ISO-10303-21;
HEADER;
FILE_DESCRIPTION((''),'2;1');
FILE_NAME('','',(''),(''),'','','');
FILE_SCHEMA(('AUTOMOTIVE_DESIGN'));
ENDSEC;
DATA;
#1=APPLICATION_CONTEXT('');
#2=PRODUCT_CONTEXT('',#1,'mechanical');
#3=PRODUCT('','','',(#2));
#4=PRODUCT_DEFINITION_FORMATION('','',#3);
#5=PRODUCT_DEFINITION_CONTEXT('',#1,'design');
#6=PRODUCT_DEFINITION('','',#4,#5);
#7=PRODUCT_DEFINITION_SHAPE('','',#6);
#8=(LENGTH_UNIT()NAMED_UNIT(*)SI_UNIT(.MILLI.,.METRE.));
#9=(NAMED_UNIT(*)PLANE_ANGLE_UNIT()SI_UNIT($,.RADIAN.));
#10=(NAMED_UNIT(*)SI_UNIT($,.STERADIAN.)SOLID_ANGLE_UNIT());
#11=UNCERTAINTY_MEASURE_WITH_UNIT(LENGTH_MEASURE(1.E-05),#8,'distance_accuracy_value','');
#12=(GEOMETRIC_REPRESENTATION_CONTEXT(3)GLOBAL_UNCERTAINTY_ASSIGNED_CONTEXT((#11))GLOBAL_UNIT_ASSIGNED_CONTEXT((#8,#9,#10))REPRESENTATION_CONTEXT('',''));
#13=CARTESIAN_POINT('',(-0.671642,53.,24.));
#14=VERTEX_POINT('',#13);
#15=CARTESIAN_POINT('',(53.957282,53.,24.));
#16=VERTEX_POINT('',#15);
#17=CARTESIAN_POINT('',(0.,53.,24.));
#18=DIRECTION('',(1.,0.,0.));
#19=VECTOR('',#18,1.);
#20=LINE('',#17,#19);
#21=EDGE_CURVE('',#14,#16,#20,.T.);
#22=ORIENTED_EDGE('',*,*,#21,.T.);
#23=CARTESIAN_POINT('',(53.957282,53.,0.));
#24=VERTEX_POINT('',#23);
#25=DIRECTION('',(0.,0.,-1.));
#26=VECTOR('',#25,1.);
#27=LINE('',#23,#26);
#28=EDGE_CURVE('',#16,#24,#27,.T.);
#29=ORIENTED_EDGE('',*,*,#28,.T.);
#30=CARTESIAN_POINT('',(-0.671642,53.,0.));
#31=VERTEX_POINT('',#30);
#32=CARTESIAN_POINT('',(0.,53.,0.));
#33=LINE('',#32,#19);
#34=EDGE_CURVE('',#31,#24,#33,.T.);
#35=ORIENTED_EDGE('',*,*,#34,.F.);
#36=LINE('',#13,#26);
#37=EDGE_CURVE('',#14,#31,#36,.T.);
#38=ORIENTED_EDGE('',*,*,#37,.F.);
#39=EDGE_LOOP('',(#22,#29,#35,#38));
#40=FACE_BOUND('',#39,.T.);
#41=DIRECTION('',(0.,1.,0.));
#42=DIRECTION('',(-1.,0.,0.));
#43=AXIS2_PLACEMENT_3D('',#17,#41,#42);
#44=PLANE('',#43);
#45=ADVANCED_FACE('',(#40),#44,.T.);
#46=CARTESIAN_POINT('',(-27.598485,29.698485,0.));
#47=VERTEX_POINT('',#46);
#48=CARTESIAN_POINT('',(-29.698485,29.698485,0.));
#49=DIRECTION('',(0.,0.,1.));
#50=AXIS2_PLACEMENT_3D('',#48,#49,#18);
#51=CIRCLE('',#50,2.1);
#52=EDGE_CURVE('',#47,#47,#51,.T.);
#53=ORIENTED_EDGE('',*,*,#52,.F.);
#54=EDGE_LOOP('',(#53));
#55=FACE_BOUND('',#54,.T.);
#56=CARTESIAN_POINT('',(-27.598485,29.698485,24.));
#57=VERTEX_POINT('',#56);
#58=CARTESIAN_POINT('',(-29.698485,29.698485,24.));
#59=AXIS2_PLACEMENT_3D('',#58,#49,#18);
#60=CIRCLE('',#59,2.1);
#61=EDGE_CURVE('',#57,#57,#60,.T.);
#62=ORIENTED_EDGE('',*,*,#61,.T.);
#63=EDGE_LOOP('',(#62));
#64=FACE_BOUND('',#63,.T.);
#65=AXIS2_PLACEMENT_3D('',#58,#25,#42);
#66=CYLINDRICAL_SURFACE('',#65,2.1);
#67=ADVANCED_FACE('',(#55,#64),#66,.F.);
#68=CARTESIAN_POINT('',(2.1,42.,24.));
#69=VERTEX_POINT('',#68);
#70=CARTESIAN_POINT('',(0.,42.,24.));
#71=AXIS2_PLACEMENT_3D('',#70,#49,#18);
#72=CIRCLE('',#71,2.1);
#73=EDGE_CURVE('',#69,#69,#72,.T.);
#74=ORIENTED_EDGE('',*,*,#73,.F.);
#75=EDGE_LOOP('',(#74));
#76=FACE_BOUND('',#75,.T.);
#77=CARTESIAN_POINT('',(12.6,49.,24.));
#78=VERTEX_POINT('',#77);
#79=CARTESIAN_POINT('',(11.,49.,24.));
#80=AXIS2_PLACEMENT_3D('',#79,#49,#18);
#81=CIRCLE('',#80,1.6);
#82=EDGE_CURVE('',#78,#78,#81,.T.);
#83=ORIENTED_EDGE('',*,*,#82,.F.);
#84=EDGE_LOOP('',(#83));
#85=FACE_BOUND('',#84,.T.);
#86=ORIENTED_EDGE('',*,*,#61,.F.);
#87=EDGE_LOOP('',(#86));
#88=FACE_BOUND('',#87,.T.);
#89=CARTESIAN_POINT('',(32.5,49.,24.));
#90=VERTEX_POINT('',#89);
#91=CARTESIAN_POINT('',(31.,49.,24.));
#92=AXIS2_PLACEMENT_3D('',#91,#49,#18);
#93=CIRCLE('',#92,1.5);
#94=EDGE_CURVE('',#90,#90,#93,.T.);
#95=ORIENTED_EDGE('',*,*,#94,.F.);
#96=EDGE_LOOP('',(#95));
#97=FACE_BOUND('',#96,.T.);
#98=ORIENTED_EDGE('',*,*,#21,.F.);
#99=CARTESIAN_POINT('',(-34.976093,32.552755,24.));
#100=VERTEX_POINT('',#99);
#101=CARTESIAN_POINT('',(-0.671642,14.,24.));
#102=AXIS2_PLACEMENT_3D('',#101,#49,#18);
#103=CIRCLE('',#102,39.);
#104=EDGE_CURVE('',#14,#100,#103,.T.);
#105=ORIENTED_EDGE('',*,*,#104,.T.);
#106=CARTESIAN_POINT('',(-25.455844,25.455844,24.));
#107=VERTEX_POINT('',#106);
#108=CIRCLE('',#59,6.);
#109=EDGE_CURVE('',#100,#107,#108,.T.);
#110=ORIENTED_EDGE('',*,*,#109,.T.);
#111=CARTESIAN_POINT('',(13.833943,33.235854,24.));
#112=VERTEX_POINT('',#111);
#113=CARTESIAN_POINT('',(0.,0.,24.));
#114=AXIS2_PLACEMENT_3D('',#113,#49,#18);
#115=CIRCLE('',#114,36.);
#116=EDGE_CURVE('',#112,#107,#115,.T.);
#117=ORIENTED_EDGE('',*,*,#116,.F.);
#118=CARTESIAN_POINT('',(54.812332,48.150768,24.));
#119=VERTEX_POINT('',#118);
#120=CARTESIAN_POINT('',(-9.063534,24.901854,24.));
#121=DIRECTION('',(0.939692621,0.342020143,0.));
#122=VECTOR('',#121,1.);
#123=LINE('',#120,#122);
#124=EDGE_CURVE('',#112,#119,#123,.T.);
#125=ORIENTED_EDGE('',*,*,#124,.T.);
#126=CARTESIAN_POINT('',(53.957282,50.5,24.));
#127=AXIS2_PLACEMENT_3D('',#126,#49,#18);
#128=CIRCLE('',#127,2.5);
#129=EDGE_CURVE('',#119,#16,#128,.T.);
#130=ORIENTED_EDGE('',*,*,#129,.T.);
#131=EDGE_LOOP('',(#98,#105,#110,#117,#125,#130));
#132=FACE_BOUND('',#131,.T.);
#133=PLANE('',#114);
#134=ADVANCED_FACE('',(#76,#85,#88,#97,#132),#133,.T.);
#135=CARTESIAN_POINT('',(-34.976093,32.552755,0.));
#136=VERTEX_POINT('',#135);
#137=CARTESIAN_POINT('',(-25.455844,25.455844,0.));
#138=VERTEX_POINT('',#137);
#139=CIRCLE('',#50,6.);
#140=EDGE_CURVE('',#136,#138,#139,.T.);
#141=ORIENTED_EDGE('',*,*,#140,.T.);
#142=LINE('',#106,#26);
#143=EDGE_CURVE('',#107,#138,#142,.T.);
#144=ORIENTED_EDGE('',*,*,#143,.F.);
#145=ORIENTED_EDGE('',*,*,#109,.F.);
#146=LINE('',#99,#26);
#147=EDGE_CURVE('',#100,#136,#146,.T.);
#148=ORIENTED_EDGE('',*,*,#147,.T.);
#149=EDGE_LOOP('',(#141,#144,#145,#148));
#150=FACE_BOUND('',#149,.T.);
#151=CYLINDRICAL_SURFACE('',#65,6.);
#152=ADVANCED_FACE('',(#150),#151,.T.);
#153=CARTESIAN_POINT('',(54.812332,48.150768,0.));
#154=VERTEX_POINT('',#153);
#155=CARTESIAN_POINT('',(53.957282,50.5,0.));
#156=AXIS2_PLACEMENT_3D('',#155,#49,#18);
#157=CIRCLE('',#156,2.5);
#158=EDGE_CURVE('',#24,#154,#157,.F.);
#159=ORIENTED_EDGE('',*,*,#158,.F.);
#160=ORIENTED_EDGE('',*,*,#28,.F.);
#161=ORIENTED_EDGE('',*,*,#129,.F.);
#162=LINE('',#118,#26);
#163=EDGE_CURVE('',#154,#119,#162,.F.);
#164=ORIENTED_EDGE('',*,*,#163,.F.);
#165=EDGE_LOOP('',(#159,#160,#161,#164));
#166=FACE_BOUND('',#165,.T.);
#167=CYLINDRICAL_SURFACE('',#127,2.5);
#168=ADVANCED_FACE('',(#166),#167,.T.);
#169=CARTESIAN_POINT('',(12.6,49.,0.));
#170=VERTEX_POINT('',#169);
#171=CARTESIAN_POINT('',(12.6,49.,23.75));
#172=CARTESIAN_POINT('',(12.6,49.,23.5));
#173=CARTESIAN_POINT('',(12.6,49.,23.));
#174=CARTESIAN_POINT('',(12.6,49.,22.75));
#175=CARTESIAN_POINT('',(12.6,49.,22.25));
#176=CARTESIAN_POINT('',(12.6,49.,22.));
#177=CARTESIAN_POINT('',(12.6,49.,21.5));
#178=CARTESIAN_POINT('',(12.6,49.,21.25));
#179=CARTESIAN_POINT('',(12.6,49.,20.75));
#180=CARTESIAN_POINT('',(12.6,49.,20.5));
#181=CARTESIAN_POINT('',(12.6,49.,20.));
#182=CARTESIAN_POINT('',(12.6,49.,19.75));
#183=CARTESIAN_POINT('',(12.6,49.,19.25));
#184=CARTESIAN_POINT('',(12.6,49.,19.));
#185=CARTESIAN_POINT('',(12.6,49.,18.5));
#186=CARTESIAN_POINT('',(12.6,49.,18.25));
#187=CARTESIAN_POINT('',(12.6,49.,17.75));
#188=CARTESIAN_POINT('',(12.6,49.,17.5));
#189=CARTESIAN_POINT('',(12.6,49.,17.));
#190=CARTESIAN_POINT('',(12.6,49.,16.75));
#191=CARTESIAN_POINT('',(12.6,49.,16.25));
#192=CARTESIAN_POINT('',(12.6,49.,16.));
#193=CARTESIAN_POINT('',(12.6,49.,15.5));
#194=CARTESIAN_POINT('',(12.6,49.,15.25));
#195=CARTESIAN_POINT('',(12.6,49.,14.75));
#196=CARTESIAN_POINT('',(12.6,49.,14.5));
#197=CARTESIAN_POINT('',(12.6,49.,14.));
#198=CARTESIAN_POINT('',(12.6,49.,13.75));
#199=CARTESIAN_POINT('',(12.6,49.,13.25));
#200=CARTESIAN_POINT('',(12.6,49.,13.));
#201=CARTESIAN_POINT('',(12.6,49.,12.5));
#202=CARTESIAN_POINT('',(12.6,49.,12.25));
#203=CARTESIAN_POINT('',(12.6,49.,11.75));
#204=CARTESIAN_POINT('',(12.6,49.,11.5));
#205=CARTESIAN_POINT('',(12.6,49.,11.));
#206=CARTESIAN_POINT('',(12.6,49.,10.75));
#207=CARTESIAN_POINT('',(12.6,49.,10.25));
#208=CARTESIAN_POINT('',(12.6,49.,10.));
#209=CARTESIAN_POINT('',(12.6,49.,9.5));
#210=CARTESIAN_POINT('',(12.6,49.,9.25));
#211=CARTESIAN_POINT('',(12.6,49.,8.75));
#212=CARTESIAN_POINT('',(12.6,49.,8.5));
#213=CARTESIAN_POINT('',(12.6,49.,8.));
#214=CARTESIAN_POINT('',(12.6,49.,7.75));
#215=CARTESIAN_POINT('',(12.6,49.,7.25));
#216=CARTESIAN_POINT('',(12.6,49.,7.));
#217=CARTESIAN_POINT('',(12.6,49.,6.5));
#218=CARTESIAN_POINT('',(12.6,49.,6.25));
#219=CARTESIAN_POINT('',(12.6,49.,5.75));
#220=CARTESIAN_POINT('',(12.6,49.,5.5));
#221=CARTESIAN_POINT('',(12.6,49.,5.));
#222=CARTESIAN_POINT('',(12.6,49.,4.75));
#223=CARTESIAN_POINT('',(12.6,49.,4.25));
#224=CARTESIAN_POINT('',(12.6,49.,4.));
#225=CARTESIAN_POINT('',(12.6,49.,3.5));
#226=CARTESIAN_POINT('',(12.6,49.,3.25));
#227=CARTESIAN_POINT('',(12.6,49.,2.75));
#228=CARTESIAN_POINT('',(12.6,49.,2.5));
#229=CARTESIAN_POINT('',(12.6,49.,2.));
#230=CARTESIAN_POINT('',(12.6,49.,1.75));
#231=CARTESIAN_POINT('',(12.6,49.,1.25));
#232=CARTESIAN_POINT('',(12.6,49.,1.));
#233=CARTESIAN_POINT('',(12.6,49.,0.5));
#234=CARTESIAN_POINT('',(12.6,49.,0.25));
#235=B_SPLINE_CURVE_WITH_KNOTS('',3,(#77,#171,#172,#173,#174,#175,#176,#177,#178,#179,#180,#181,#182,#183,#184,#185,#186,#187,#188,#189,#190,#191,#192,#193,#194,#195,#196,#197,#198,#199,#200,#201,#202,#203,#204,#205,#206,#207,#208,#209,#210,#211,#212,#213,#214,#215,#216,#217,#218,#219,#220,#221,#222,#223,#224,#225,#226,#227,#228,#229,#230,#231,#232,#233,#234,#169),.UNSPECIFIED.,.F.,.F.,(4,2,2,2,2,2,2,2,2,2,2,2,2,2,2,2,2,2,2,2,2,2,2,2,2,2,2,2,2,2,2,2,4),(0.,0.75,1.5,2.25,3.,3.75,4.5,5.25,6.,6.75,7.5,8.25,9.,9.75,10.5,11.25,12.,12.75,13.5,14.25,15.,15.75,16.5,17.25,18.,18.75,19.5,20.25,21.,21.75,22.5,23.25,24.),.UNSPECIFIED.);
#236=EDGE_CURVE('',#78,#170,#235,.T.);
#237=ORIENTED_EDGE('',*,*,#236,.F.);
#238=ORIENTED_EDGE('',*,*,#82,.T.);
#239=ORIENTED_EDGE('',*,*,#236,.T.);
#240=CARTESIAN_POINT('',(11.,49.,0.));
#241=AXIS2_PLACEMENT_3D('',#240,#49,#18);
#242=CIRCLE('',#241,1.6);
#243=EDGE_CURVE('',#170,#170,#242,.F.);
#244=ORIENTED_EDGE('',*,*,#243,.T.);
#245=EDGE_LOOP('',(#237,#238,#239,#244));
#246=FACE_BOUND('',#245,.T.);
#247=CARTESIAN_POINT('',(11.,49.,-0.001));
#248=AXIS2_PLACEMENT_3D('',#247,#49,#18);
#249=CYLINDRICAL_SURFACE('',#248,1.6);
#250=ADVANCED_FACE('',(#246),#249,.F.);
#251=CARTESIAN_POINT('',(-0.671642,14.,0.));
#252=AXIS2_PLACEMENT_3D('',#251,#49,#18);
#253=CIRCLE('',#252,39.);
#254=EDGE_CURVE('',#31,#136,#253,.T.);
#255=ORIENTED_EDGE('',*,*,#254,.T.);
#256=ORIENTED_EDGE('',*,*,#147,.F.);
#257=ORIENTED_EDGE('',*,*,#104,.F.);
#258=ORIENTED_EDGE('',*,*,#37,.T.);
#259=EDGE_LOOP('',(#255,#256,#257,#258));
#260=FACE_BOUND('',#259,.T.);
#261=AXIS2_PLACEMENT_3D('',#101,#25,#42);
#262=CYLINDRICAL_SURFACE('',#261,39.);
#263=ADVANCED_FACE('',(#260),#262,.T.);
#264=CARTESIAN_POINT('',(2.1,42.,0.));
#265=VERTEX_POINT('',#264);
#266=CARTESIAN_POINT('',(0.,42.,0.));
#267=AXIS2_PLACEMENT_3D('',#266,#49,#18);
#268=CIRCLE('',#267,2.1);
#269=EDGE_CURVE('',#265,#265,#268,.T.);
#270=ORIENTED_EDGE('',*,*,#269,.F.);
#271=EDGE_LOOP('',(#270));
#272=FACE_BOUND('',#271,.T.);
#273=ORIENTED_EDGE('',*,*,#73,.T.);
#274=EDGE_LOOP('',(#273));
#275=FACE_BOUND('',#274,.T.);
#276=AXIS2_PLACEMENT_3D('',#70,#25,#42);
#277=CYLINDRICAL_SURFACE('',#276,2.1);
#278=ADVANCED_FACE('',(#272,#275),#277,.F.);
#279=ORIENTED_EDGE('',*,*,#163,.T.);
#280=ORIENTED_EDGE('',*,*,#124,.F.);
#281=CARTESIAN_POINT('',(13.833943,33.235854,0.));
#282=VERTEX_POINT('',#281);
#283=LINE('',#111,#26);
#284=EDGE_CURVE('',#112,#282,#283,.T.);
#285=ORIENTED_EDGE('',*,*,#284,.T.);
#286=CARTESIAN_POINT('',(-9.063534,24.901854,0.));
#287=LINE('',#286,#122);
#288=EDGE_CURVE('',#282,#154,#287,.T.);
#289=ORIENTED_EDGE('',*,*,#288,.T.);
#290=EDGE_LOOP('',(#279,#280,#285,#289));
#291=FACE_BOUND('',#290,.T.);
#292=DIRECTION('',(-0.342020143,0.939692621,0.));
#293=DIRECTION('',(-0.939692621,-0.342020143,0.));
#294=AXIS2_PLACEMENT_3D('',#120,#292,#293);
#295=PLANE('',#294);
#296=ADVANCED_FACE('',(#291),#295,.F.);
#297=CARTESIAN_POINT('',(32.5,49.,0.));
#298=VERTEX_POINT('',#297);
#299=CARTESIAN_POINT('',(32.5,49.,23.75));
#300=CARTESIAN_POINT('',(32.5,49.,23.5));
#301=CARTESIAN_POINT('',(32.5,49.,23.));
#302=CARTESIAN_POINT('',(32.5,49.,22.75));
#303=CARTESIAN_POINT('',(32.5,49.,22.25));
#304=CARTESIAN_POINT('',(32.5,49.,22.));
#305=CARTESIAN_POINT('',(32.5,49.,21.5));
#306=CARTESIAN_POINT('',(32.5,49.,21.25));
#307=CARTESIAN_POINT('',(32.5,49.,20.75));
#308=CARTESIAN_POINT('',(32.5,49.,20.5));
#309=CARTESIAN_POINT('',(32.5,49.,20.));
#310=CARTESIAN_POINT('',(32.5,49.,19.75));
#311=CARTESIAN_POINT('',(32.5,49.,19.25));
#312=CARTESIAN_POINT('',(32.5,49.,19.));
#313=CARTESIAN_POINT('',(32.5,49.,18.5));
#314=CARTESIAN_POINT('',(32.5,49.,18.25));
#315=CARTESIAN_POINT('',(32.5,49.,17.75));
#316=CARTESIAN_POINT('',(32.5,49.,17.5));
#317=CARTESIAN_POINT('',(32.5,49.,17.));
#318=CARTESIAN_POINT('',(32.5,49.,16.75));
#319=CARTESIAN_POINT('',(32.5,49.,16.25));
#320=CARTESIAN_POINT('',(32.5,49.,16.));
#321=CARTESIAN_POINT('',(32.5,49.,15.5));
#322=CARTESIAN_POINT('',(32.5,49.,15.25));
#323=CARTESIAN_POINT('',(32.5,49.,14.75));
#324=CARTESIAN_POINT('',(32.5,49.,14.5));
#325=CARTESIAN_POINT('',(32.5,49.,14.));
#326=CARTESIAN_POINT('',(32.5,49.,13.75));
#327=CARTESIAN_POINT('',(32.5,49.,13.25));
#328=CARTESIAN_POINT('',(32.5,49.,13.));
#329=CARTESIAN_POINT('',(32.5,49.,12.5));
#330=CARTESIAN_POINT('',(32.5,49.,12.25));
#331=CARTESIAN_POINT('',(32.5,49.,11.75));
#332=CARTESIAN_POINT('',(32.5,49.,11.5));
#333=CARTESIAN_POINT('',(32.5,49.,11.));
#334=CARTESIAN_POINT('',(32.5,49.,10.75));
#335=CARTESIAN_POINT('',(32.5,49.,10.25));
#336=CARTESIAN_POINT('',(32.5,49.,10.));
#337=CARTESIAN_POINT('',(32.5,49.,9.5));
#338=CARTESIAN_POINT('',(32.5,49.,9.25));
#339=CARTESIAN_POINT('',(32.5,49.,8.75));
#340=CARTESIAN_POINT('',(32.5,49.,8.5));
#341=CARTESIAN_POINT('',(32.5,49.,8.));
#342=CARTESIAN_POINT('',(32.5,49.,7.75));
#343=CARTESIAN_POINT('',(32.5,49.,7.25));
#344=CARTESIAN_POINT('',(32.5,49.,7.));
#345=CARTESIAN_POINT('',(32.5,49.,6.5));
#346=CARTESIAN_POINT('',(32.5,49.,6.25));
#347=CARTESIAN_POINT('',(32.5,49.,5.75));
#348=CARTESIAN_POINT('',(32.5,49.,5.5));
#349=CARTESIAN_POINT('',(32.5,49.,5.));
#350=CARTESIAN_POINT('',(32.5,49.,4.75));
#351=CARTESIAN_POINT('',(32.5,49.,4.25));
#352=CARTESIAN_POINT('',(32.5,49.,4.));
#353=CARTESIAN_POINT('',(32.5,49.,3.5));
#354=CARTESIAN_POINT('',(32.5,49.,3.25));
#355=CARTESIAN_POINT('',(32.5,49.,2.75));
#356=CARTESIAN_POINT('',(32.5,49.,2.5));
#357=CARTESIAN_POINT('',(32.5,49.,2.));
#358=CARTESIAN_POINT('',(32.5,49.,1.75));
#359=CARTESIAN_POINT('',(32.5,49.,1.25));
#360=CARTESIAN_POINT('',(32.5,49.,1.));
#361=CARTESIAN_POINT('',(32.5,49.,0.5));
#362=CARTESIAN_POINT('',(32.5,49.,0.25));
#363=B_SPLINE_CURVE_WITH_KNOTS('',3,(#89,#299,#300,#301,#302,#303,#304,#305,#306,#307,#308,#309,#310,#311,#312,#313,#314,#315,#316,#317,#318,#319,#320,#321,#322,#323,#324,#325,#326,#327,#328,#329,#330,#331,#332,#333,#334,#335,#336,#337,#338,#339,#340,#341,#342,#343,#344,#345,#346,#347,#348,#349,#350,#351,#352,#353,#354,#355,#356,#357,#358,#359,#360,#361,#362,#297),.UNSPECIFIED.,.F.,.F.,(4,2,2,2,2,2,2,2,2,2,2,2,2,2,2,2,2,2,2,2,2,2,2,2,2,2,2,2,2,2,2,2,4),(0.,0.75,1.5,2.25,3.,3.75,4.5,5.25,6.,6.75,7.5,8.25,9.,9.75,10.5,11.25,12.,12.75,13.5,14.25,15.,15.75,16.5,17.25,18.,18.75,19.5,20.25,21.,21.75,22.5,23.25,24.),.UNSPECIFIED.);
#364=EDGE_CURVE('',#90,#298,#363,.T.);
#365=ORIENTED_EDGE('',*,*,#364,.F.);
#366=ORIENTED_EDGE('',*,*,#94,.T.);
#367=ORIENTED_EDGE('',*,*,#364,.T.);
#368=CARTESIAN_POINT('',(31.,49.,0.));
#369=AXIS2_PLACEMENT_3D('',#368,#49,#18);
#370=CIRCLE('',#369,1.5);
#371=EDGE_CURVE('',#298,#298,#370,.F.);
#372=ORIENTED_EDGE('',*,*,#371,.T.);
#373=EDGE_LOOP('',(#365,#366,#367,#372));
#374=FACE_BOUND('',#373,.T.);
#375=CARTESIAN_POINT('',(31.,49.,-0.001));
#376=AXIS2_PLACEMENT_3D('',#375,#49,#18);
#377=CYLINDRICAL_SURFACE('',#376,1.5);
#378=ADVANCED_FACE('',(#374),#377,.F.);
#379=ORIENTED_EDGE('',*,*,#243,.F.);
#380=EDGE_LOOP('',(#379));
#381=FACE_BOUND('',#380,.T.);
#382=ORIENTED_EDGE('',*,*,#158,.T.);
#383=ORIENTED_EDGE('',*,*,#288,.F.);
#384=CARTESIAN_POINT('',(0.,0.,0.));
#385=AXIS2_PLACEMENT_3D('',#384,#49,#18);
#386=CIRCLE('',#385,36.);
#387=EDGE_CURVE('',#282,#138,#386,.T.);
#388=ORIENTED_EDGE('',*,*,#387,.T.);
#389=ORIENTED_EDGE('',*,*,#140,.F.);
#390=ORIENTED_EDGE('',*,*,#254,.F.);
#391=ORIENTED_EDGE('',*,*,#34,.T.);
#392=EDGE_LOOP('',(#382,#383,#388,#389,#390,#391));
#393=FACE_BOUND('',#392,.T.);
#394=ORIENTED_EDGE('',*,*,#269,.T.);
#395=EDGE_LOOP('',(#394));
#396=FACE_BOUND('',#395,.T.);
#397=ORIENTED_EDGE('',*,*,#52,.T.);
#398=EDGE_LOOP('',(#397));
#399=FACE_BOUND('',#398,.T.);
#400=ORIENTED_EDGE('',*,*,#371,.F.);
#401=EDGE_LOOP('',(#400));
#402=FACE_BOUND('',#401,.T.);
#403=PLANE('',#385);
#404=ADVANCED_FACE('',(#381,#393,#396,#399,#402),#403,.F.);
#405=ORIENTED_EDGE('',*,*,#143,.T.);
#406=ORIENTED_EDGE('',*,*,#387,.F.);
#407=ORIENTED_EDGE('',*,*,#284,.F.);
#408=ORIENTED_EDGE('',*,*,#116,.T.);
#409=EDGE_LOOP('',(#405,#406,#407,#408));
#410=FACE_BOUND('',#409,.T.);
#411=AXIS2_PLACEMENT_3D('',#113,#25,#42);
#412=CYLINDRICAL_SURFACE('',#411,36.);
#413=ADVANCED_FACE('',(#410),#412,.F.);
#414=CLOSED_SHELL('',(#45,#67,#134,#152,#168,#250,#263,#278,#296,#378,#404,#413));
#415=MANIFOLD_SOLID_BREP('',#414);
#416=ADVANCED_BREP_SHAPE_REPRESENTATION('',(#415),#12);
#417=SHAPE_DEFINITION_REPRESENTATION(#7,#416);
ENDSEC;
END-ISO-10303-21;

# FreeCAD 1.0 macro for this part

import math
import FreeCAD as App
import Part
import Sketcher
Q = App.Units.Quantity


def edges_at(feature, points):
    """Names of the edges that pass closest to the given points."""
    edges = feature.Shape.Edges
    near = lambda p: min(range(len(edges)), key=lambda i: edges[i].distToShape(Part.Vertex(*p))[0])
    return sorted({f"Edge{near(p) + 1}" for p in points})

doc = App.newDocument("Part")
body = doc.addObject("PartDesign::Body", "Body")

# Sketch on XY plane
sketch1 = body.newObject("Sketcher::SketchObject", "Sketch")
sketch1.AttachmentSupport = (doc.getObject("XY_Plane"), [""])
sketch1.MapMode = "FlatFace"
sketch1.addGeometry(Part.LineSegment(App.Vector(68.135487, 53, 0), App.Vector(-0.671643, 53, 0)), False)
sketch1.addGeometry(Part.ArcOfCircle(Part.Circle(App.Vector(-0.671642, 14, 0), App.Vector(0, 0, 1), 39), math.radians(90), math.radians(151.594304)), False)
sketch1.addGeometry(Part.ArcOfCircle(Part.Circle(App.Vector(-29.698485, 29.698485, 0), App.Vector(0, 0, 1), 6), math.radians(151.594306), math.radians(314.999999)), False)
sketch1.addGeometry(Part.ArcOfCircle(Part.Circle(App.Vector(0, 0, 0), App.Vector(0, 0, 1), 36), math.radians(67.401187), math.radians(135)), False)
sketch1.addGeometry(Part.LineSegment(App.Vector(13.833943, 33.235854, 0), App.Vector(29.356723, 38.885684, 0)), False)
sketch1.addGeometry(Part.LineSegment(App.Vector(29.356723, 38.885684, 0), App.Vector(68.135487, 53, 0)), False)
sketch1.addGeometry(Part.Circle(App.Vector(0, 42, 0), App.Vector(0, 0, 1), 2.1), False)
sketch1.addGeometry(Part.Circle(App.Vector(-29.698485, 29.698485, 0), App.Vector(0, 0, 1), 2.1), False)
sketch1.addConstraint(Sketcher.Constraint("Tangent", 0, 2, 1, 1))
sketch1.addConstraint(Sketcher.Constraint("Tangent", 1, 2, 2, 1))
sketch1.addConstraint(Sketcher.Constraint("Tangent", 2, 2, 3, 2))
sketch1.addConstraint(Sketcher.Constraint("Coincident", 3, 1, 4, 1))
sketch1.addConstraint(Sketcher.Constraint("Coincident", 4, 2, 5, 1))
sketch1.addConstraint(Sketcher.Constraint("Coincident", 5, 2, 0, 1))
sketch1.addConstraint(Sketcher.Constraint("Horizontal", 0))
sketch1.addConstraint(Sketcher.Constraint("Coincident", 3, 3, -1, 1))
sketch1.addConstraint(Sketcher.Constraint("Coincident", 7, 3, 2, 3))
sketch1.addConstraint(Sketcher.Constraint("Equal", 6, 7))
sketch1.addConstraint(Sketcher.Constraint("PointOnObject", 6, 3, -2))
sketch1.addConstraint(Sketcher.Constraint("Parallel", 4, 5))
sketch1.addConstraint(Sketcher.Constraint("Radius", 1, Q("39 mm")))
sketch1.addConstraint(Sketcher.Constraint("Radius", 2, Q("6 mm")))
sketch1.addConstraint(Sketcher.Constraint("Radius", 3, Q("36 mm")))
sketch1.addConstraint(Sketcher.Constraint("Diameter", 6, Q("4.2 mm")))
sketch1.addConstraint(Sketcher.Constraint("Angle", 4, Q("20 deg")))
sketch1.addConstraint(Sketcher.Constraint("DistanceY", -1, 1, 1, 3, Q("14 mm")))
sketch1.addConstraint(Sketcher.Constraint("DistanceY", -1, 1, 6, 3, Q("42 mm")))
sketch1.addConstraint(Sketcher.Constraint("Distance", 5, Q("41.267499 mm")))
sketch1.addConstraint(Sketcher.Constraint("DistanceX", 0, 2, 0, 1, Q("68.807129 mm")))
sketch1.addConstraint(Sketcher.Constraint("DistanceX", 2, 2, 1, 3, Q("24.784202 mm")))
pad1 = body.newObject("PartDesign::Pad", "Pad")
pad1.Profile = sketch1
pad1.Length = 24
doc.recompute()

fillet = body.newObject("PartDesign::Fillet", "Fillet")
fillet.Base = (pad1, edges_at(pad1, [(68.135, 53, 12)]))
fillet.Radius = 2.5

# Sketch on XY plane
sketch2 = body.newObject("Sketcher::SketchObject", "Sketch001")
sketch2.AttachmentSupport = (doc.getObject("XY_Plane"), [""])
sketch2.MapMode = "FlatFace"
sketch2.addGeometry(Part.Circle(App.Vector(11, 49, 0), App.Vector(0, 0, 1), 1.6), False)
sketch2.addGeometry(Part.Circle(App.Vector(31, 49, 0), App.Vector(0, 0, 1), 1.5), False)
sketch2.addGeometry(Part.Circle(App.Vector(0, 42, 0), App.Vector(0, 0, 1), 2.1), False)
sketch2.addConstraint(Sketcher.Constraint("PointOnObject", 2, 3, -2))
sketch2.addConstraint(Sketcher.Constraint("Horizontal", 0, 3, 1, 3))
sketch2.addConstraint(Sketcher.Constraint("Diameter", 1, Q("3 mm")))
sketch2.addConstraint(Sketcher.Constraint("Diameter", 0, Q("3.2 mm")))
sketch2.addConstraint(Sketcher.Constraint("Diameter", 2, Q("4.2 mm")))
sketch2.addConstraint(Sketcher.Constraint("DistanceX", -1, 1, 0, 3, Q("11 mm")))
sketch2.addConstraint(Sketcher.Constraint("DistanceY", -1, 1, 0, 3, Q("49 mm")))
sketch2.addConstraint(Sketcher.Constraint("DistanceX", -1, 1, 1, 3, Q("31 mm")))
sketch2.addConstraint(Sketcher.Constraint("DistanceY", -1, 1, 2, 3, Q("42 mm")))
pocket1 = body.newObject("PartDesign::Pocket", "Pocket")
pocket1.Profile = sketch2
pocket1.Length = 24
pocket1.Reversed = True

doc.recompute()
